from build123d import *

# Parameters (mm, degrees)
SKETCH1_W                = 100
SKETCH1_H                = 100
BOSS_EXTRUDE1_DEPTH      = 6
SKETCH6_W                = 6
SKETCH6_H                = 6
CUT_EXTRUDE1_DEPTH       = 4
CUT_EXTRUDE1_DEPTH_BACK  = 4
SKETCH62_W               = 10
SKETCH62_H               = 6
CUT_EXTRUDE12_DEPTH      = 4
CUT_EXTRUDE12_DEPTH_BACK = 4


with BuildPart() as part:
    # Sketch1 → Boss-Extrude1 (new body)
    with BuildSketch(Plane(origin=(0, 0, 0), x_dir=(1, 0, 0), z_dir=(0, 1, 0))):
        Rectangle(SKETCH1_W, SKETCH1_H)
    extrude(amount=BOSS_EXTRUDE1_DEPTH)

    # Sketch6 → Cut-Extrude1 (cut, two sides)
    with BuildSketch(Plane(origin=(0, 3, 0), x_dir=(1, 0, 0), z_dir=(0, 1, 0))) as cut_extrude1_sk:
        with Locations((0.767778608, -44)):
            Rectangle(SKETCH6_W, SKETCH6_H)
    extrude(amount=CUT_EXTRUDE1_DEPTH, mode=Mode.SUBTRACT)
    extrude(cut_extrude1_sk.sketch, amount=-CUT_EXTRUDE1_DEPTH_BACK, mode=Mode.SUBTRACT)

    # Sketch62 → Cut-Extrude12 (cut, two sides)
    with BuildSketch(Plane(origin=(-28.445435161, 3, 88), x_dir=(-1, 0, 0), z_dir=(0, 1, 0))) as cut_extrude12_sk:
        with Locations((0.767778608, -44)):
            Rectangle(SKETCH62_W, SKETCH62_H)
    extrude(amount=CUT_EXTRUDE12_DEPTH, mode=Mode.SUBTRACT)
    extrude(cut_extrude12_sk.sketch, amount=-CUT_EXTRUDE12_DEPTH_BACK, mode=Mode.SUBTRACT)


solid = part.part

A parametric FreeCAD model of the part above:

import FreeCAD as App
import Part
import Sketcher


def add_polygon(sketch, points):
    """Adds a closed chain of lines whose ends are joined by coincident constraints."""
    first, n = sketch.GeometryCount, len(points)
    for a, b in zip(points, points[1:] + points[:1]):
        sketch.addGeometry(Part.LineSegment(App.Vector(*a, 0), App.Vector(*b, 0)), False)
    for i in range(n):
        sketch.addConstraint(Sketcher.Constraint("Coincident", first + i, 2, first + (i + 1) % n, 1))

doc = App.newDocument("Part")
body = doc.addObject("PartDesign::Body", "Body")

sketch1 = body.newObject("Sketcher::SketchObject", "Sketch")
sketch1.AttachmentSupport = (doc.getObject("XZ_Plane"), [""])
sketch1.MapMode = "FlatFace"
add_polygon(sketch1, [(-50, -50), (-50, 50), (50, 50), (50, -50)])
sketch1.addConstraint([
    Sketcher.Constraint("Vertical", 0),
    Sketcher.Constraint("Horizontal", 1),
    Sketcher.Constraint("Vertical", 2),
    Sketcher.Constraint("Horizontal", 3),
    Sketcher.Constraint("Symmetric", 0, 2, 2, 2, -1, 1),
    Sketcher.Constraint("Equal", 3, 0),
    Sketcher.Constraint("DistanceX", 1, 1, 1, 2, 100.0),
])
pad1 = body.newObject("PartDesign::Pad", "Pad")
pad1.Profile = sketch1
pad1.Length = 6
pad1.Reversed = True

sketch2 = body.newObject("Sketcher::SketchObject", "Sketch001")
sketch2.AttachmentSupport = (doc.getObject("XZ_Plane"), [""])
sketch2.MapMode = "FlatFace"
sketch2.AttachmentOffset = App.Placement(App.Vector(0, 0, -3), App.Rotation())
add_polygon(sketch2, [(-2, 41), (-2, 47), (4, 47), (4, 41)])
sketch2.addConstraint([
    Sketcher.Constraint("Vertical", 0),
    Sketcher.Constraint("Horizontal", 1),
    Sketcher.Constraint("Vertical", 2),
    Sketcher.Constraint("Horizontal", 3),
    Sketcher.Constraint("Equal", 3, 0),
    Sketcher.Constraint("DistanceX", 1, 1, 1, 2, 6.0),
    Sketcher.Constraint("DistanceY", -1, 1, 0, 2, 47.0),
    Sketcher.Constraint("DistanceX", 0, 2, -1, 1, 2.232221),
])
pocket1 = body.newObject("PartDesign::Pocket", "Pocket")
pocket1.Profile = sketch2
pocket1.Type = "ThroughAll"
pocket1.Midplane = True

sketch3 = body.newObject("Sketcher::SketchObject", "Sketch002")
sketch3.AttachmentSupport = (doc.getObject("XZ_Plane"), [""])
sketch3.MapMode = "FlatFace"
sketch3.AttachmentOffset = App.Placement(App.Vector(0, 0, -3), App.Rotation())
add_polygon(sketch3, [(-24, 47), (-24, 41), (-34, 41), (-34, 47)])
sketch3.addConstraint([
    Sketcher.Constraint("Vertical", 0),
    Sketcher.Constraint("Horizontal", 1),
    Sketcher.Constraint("Vertical", 2),
    Sketcher.Constraint("Horizontal", 3),
    Sketcher.Constraint("DistanceX", 1, 2, 1, 1, 10.0),
    Sketcher.Constraint("DistanceY", 0, 2, 0, 1, 6.0),
    Sketcher.Constraint("DistanceY", -1, 1, 0, 2, 41.0),
    Sketcher.Constraint("DistanceX", 0, 2, -1, 1, 24.213214),
])
pocket2 = body.newObject("PartDesign::Pocket", "Pocket001")
pocket2.Profile = sketch3
pocket2.Type = "ThroughAll"
pocket2.Midplane = True

doc.recompute()
